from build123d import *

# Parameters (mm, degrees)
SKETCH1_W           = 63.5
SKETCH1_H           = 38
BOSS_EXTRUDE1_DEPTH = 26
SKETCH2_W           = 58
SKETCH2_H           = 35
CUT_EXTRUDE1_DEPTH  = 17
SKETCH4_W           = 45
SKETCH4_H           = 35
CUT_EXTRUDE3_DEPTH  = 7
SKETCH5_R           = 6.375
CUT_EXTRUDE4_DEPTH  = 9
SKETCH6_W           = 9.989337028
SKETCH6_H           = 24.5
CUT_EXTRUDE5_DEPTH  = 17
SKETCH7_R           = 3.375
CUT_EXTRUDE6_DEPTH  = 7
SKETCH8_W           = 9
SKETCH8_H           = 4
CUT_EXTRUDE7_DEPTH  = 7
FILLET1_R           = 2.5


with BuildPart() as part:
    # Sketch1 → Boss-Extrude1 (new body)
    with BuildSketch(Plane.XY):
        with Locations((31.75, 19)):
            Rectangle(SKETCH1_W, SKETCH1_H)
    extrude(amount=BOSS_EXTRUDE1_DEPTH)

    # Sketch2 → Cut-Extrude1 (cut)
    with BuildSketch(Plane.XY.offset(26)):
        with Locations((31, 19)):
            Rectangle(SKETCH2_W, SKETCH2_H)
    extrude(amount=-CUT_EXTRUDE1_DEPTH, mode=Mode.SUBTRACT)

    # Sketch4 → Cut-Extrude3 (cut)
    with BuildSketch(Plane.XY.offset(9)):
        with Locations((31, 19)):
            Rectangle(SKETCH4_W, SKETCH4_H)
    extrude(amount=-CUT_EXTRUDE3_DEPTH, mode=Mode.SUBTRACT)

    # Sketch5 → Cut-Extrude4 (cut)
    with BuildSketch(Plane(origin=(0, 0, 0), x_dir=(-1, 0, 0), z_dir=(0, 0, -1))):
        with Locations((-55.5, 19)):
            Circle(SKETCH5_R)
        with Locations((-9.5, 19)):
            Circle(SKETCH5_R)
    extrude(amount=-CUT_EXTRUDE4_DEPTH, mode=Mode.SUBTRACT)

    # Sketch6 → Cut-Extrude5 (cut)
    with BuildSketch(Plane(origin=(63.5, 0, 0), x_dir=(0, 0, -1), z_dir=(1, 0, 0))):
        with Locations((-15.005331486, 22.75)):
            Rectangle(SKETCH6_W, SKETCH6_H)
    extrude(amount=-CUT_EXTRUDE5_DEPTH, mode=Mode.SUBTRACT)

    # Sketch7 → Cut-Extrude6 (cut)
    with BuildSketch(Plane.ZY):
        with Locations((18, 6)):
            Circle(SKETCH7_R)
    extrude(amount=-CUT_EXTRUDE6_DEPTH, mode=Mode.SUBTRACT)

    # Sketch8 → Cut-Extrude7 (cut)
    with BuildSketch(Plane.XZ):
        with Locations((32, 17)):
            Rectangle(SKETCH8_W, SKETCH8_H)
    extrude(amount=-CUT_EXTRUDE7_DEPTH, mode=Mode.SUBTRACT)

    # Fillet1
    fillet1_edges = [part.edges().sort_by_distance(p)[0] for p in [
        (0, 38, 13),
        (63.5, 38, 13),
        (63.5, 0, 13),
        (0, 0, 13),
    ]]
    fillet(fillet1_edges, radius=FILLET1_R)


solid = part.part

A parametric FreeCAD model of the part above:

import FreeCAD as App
import Part
import Sketcher
Q = App.Units.Quantity


def edges_at(feature, points):
    """Names of the edges that pass closest to the given points."""
    edges = feature.Shape.Edges
    near = lambda p: min(range(len(edges)), key=lambda i: edges[i].distToShape(Part.Vertex(*p))[0])
    return sorted({f"Edge{near(p) + 1}" for p in points})

doc = App.newDocument("Part")
body = doc.addObject("PartDesign::Body", "Body")

sketch1 = body.newObject("Sketcher::SketchObject", "Sketch")
sketch1.AttachmentSupport = (doc.getObject("XY_Plane"), [""])
sketch1.MapMode = "FlatFace"
sketch1.addGeometry([
    Part.LineSegment(App.Vector(0, 38, 0), App.Vector(0, 0, 0)),
    Part.LineSegment(App.Vector(0, 0, 0), App.Vector(64, 0, 0)),
    Part.LineSegment(App.Vector(64, 0, 0), App.Vector(64, 38, 0)),
    Part.LineSegment(App.Vector(64, 38, 0), App.Vector(0, 38, 0)),
], False)
sketch1.addConstraint([
    Sketcher.Constraint("Coincident", 0, 2, 1, 1),
    Sketcher.Constraint("Coincident", 1, 2, 2, 1),
    Sketcher.Constraint("Coincident", 2, 2, 3, 1),
    Sketcher.Constraint("Coincident", 3, 2, 0, 1),
    Sketcher.Constraint("Vertical", 0),
    Sketcher.Constraint("Horizontal", 1),
    Sketcher.Constraint("Vertical", 2),
    Sketcher.Constraint("Horizontal", 3),
    Sketcher.Constraint("Coincident", 0, 2, -1, 1),
    Sketcher.Constraint("DistanceY", 0, 2, 0, 1, Q("38 mm")),
    Sketcher.Constraint("DistanceX", 1, 1, 1, 2, Q("63.5 mm")),
])
pad1 = body.newObject("PartDesign::Pad", "Pad")
pad1.Profile = sketch1
pad1.Length = 26

sketch2 = body.newObject("Sketcher::SketchObject", "Sketch001")
sketch2.AttachmentSupport = (doc.getObject("XY_Plane"), [""])
sketch2.MapMode = "FlatFace"
sketch2.AttachmentOffset = App.Placement(App.Vector(0, 0, 26), App.Rotation())
sketch2.addGeometry([
    Part.LineSegment(App.Vector(2, 36, 0), App.Vector(2, 2, 0)),
    Part.LineSegment(App.Vector(2, 2, 0), App.Vector(60, 2, 0)),
    Part.LineSegment(App.Vector(60, 2, 0), App.Vector(60, 36, 0)),
    Part.LineSegment(App.Vector(60, 36, 0), App.Vector(2, 36, 0)),
], False)
sketch2.addConstraint([
    Sketcher.Constraint("Coincident", 0, 2, 1, 1),
    Sketcher.Constraint("Coincident", 1, 2, 2, 1),
    Sketcher.Constraint("Coincident", 2, 2, 3, 1),
    Sketcher.Constraint("Coincident", 3, 2, 0, 1),
    Sketcher.Constraint("Vertical", 0),
    Sketcher.Constraint("Horizontal", 1),
    Sketcher.Constraint("Vertical", 2),
    Sketcher.Constraint("Horizontal", 3),
    Sketcher.Constraint("DistanceX", 1, 1, 1, 2, Q("58 mm")),
    Sketcher.Constraint("DistanceY", 0, 2, 0, 1, Q("35 mm")),
    Sketcher.Constraint("DistanceX", -1, 1, 0, 2, Q("2 mm")),
    Sketcher.Constraint("DistanceY", -1, 1, 0, 2, Q("1.5 mm")),
])
pocket1 = body.newObject("PartDesign::Pocket", "Pocket")
pocket1.Profile = sketch2
pocket1.Length = 17

sketch3 = body.newObject("Sketcher::SketchObject", "Sketch002")
sketch3.AttachmentSupport = (doc.getObject("XY_Plane"), [""])
sketch3.MapMode = "FlatFace"
sketch3.AttachmentOffset = App.Placement(App.Vector(0, 0, 9), App.Rotation())
sketch3.addGeometry([
    Part.LineSegment(App.Vector(8, 36, 0), App.Vector(8, 2, 0)),
    Part.LineSegment(App.Vector(8, 2, 0), App.Vector(54, 2, 0)),
    Part.LineSegment(App.Vector(54, 2, 0), App.Vector(54, 36, 0)),
    Part.LineSegment(App.Vector(54, 36, 0), App.Vector(8, 36, 0)),
], False)
sketch3.addConstraint([
    Sketcher.Constraint("Coincident", 0, 2, 1, 1),
    Sketcher.Constraint("Coincident", 1, 2, 2, 1),
    Sketcher.Constraint("Coincident", 2, 2, 3, 1),
    Sketcher.Constraint("Coincident", 3, 2, 0, 1),
    Sketcher.Constraint("Vertical", 0),
    Sketcher.Constraint("Horizontal", 1),
    Sketcher.Constraint("Vertical", 2),
    Sketcher.Constraint("Horizontal", 3),
    Sketcher.Constraint("DistanceX", 1, 1, 1, 2, Q("45 mm")),
    Sketcher.Constraint("DistanceY", 0, 2, 0, 1, Q("35 mm")),
    Sketcher.Constraint("DistanceX", -1, 1, 0, 2, Q("8.5 mm")),
    Sketcher.Constraint("DistanceY", -1, 1, 0, 2, Q("1.5 mm")),
])
pocket2 = body.newObject("PartDesign::Pocket", "Pocket001")
pocket2.Profile = sketch3
pocket2.Length = 7

sketch4 = body.newObject("Sketcher::SketchObject", "Sketch003")
sketch4.AttachmentSupport = (doc.getObject("XY_Plane"), [""])
sketch4.MapMode = "FlatFace"
sketch4.addGeometry([
    Part.Circle(App.Vector(56, 19, 0), App.Vector(0, 0, 1), 6),
    Part.Circle(App.Vector(10, 19, 0), App.Vector(0, 0, 1), 6),
], False)
sketch4.addConstraint([
    Sketcher.Constraint("Equal", 0, 1),
    Sketcher.Constraint("Horizontal", 0, 3, 1, 3),
    Sketcher.Constraint("Diameter", 0, Q("12.75 mm")),
    Sketcher.Constraint("DistanceY", -1, 1, 0, 3, Q("19 mm")),
    Sketcher.Constraint("DistanceX", 1, 3, 0, 3, Q("46 mm")),
    Sketcher.Constraint("DistanceX", -1, 1, 0, 3, Q("55.5 mm")),
])
pocket3 = body.newObject("PartDesign::Pocket", "Pocket002")
pocket3.Profile = sketch4
pocket3.Length = 9
pocket3.Reversed = True

sketch5 = body.newObject("Sketcher::SketchObject", "Sketch004")
sketch5.AttachmentSupport = (doc.getObject("YZ_Plane"), [""])
sketch5.MapMode = "FlatFace"
sketch5.AttachmentOffset = App.Placement(App.Vector(0, 0, 63.5), App.Rotation())
sketch5.addGeometry([
    Part.LineSegment(App.Vector(35, 20, 0), App.Vector(10, 20, 0)),
    Part.LineSegment(App.Vector(10, 20, 0), App.Vector(10, 10, 0)),
    Part.LineSegment(App.Vector(10, 10, 0), App.Vector(35, 10, 0)),
    Part.LineSegment(App.Vector(35, 10, 0), App.Vector(35, 20, 0)),
], False)
sketch5.addConstraint([
    Sketcher.Constraint("Coincident", 0, 2, 1, 1),
    Sketcher.Constraint("Coincident", 1, 2, 2, 1),
    Sketcher.Constraint("Coincident", 2, 2, 3, 1),
    Sketcher.Constraint("Coincident", 3, 2, 0, 1),
    Sketcher.Constraint("Horizontal", 0),
    Sketcher.Constraint("Vertical", 1),
    Sketcher.Constraint("Horizontal", 2),
    Sketcher.Constraint("Vertical", 3),
    Sketcher.Constraint("DistanceX", 0, 2, 0, 1, Q("24.5 mm")),
    Sketcher.Constraint("DistanceY", -1, 1, 0, 2, Q("20 mm")),
    Sketcher.Constraint("DistanceX", -1, 1, 2, 2, Q("35 mm")),
    Sketcher.Constraint("DistanceY", 1, 2, 1, 1, Q("9.989337 mm")),
])
pocket4 = body.newObject("PartDesign::Pocket", "Pocket003")
pocket4.Profile = sketch5
pocket4.Length = 17

sketch6 = body.newObject("Sketcher::SketchObject", "Sketch005")
sketch6.AttachmentSupport = (doc.getObject("YZ_Plane"), [""])
sketch6.MapMode = "FlatFace"
sketch6.addGeometry(Part.Circle(App.Vector(6, 18, 0), App.Vector(0, 0, 1), 3.4), False)
sketch6.addConstraint([
    Sketcher.Constraint("Diameter", 0, Q("6.75 mm")),
    Sketcher.Constraint("DistanceX", -1, 1, 0, 3, Q("6 mm")),
    Sketcher.Constraint("DistanceY", -1, 1, 0, 3, Q("18 mm")),
])
pocket5 = body.newObject("PartDesign::Pocket", "Pocket004")
pocket5.Profile = sketch6
pocket5.Length = 7
pocket5.Reversed = True

sketch7 = body.newObject("Sketcher::SketchObject", "Sketch006")
sketch7.AttachmentSupport = (doc.getObject("XZ_Plane"), [""])
sketch7.MapMode = "FlatFace"
sketch7.addGeometry([
    Part.LineSegment(App.Vector(27.5, 19, 0), App.Vector(27.5, 15, 0)),
    Part.LineSegment(App.Vector(27.5, 15, 0), App.Vector(36.5, 15, 0)),
    Part.LineSegment(App.Vector(36.5, 15, 0), App.Vector(36.5, 19, 0)),
    Part.LineSegment(App.Vector(36.5, 19, 0), App.Vector(27.5, 19, 0)),
], False)
sketch7.addConstraint([
    Sketcher.Constraint("Coincident", 0, 2, 1, 1),
    Sketcher.Constraint("Coincident", 1, 2, 2, 1),
    Sketcher.Constraint("Coincident", 2, 2, 3, 1),
    Sketcher.Constraint("Coincident", 3, 2, 0, 1),
    Sketcher.Constraint("Vertical", 0),
    Sketcher.Constraint("Horizontal", 1),
    Sketcher.Constraint("Vertical", 2),
    Sketcher.Constraint("Horizontal", 3),
    Sketcher.Constraint("DistanceX", 1, 1, 1, 2, Q("9 mm")),
    Sketcher.Constraint("DistanceY", 0, 2, 0, 1, Q("4 mm")),
    Sketcher.Constraint("DistanceY", -1, 1, 0, 2, Q("15 mm")),
    Sketcher.Constraint("DistanceX", -1, 1, 0, 2, Q("27.5 mm")),
])
pocket6 = body.newObject("PartDesign::Pocket", "Pocket005")
pocket6.Profile = sketch7
pocket6.Length = 7
doc.recompute()

fillet = body.newObject("PartDesign::Fillet", "Fillet")
fillet.Base = (pocket6, edges_at(pocket6, [
    (0, 38, 13),
    (63.5, 38, 13),
    (63.5, 0, 13),
    (0, 0, 13),
]))
fillet.Radius = 2.5

doc.recompute()
